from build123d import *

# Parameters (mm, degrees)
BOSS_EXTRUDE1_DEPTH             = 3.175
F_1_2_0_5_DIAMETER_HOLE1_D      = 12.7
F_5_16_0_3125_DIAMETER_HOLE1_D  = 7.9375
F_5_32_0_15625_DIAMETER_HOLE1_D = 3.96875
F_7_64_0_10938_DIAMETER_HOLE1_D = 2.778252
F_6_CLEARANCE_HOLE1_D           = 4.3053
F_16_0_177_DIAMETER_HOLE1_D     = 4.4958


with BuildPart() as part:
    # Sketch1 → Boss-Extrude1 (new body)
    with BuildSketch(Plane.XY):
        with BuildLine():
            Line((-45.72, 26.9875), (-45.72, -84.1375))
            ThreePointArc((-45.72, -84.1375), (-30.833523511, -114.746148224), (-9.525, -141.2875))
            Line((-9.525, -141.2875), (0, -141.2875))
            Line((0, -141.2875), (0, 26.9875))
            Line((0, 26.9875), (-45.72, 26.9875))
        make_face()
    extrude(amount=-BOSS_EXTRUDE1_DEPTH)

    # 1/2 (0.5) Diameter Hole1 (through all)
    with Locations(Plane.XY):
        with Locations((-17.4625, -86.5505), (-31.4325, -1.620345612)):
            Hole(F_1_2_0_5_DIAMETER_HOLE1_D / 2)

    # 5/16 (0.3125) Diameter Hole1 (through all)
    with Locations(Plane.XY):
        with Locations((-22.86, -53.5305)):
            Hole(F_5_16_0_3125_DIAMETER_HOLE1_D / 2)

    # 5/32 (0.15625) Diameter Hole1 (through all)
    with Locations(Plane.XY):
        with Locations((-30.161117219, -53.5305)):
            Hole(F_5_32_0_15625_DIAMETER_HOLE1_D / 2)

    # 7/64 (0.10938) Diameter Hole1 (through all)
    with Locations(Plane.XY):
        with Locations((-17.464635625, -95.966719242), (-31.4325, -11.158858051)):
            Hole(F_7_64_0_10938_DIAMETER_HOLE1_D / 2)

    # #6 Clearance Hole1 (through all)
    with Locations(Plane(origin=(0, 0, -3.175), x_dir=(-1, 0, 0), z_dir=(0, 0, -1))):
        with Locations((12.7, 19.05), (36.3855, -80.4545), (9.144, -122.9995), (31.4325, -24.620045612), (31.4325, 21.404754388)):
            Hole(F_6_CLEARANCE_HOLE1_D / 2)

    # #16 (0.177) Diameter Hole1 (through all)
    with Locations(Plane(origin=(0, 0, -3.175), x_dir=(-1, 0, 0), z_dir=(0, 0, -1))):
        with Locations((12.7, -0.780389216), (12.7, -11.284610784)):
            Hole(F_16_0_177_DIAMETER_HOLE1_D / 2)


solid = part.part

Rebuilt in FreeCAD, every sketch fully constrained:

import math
import FreeCAD as App
import Part
import Sketcher

V = App.Vector
Q = App.Units.Quantity

doc = App.newDocument("Part")
body = doc.addObject("PartDesign::Body", "Body")

# Sketch on XY plane
sketch1 = body.newObject("Sketcher::SketchObject", "Sketch")
sketch1.AttachmentSupport = (doc.getObject("XY_Plane"), [""])
sketch1.MapMode = "FlatFace"
sketch1.addGeometry([
    Part.LineSegment(V(-46, 27, 0), V(-46, -84, 0)),  # 0
    Part.ArcOfCircle(Part.Circle(V(98, -33, 0), V(0, 0, 1), 152), math.radians(-160), math.radians(-135)),  # 1
    Part.LineSegment(V(-10, -141, 0), V(0, -141, 0)),  # 2
    Part.LineSegment(V(0, -141, 0), V(0, 27, 0)),  # 3
    Part.LineSegment(V(0, 27, 0), V(-46, 27, 0)),  # 4
], False)
sketch1.addConstraint([
    Sketcher.Constraint("Coincident", 0, 2, 1, 1),
    Sketcher.Constraint("Coincident", 1, 2, 2, 1),
    Sketcher.Constraint("Coincident", 2, 2, 3, 1),
    Sketcher.Constraint("Coincident", 3, 2, 4, 1),
    Sketcher.Constraint("Coincident", 4, 2, 0, 1),
    Sketcher.Constraint("Vertical", 0),
    Sketcher.Constraint("Horizontal", 2),
    Sketcher.Constraint("Vertical", 3),
    Sketcher.Constraint("Horizontal", 4),
    Sketcher.Constraint("PointOnObject", 2, 2, -2),
    Sketcher.Constraint("Radius", 1, Q("6 in")),
    Sketcher.Constraint("DistanceX", 4, 2, 4, 1, Q("1.8 in")),
    Sketcher.Constraint("DistanceX", 2, 1, 2, 2, Q("0.375 in")),
    Sketcher.Constraint("DistanceY", 0, 2, 0, 1, Q("4.375 in")),
    Sketcher.Constraint("DistanceY", 3, 1, 3, 2, Q("6.625 in")),
    Sketcher.Constraint("DistanceY", 0, 2, -1, 1, Q("3.3125 in")),
])
pad1 = body.newObject("PartDesign::Pad", "Pad")
pad1.Profile = sketch1
pad1.Length = Q("0.125 in")
pad1.Reversed = True

# Sketch on XY plane
sketch2 = body.newObject("Sketcher::SketchObject", "Sketch001")
sketch2.AttachmentSupport = (doc.getObject("XY_Plane"), [""])
sketch2.MapMode = "FlatFace"
sketch2.addGeometry([
    Part.Circle(V(-17, -87, 0), V(0, 0, 1), 6),
    Part.Circle(V(-31, -2, 0), V(0, 0, 1), 6),
], False)
sketch2.addConstraint([
    Sketcher.Constraint("Equal", 0, 1),
    Sketcher.Constraint("Diameter", 0, Q("0.5 in")),
    Sketcher.Constraint("DistanceX", 1, 3, 0, 3, Q("0.55 in")),
    Sketcher.Constraint("DistanceX", 0, 3, -1, 1, Q("0.6875 in")),
    Sketcher.Constraint("DistanceY", 0, 3, -1, 1, Q("3.4075 in")),
    Sketcher.Constraint("DistanceY", 1, 3, -1, 1, 1.620346),
])
doc.recompute()
hole = body.newObject("PartDesign::Hole", "Hole")
hole.Profile = sketch2
hole.ThreadType = "None"
hole.Diameter = Q("0.5 in")
hole.DepthType = "ThroughAll"

# Sketch on XY plane
sketch3 = body.newObject("Sketcher::SketchObject", "Sketch002")
sketch3.AttachmentSupport = (doc.getObject("XY_Plane"), [""])
sketch3.MapMode = "FlatFace"
sketch3.addGeometry(Part.Circle(V(-22.9, -53.5, 0), V(0, 0, 1), 4), False)
sketch3.addConstraint([
    Sketcher.Constraint("Diameter", 0, Q("0.3125 in")),
    Sketcher.Constraint("DistanceX", 0, 3, -1, 1, Q("0.9 in")),
    Sketcher.Constraint("DistanceY", 0, 3, -1, 1, Q("2.1075 in")),
])
doc.recompute()
hole2 = body.newObject("PartDesign::Hole", "Hole001")
hole2.Profile = sketch3
hole2.ThreadType = "None"
hole2.Diameter = Q("0.3125 in")
hole2.DepthType = "ThroughAll"

# Sketch on XY plane
sketch4 = body.newObject("Sketcher::SketchObject", "Sketch003")
sketch4.AttachmentSupport = (doc.getObject("XY_Plane"), [""])
sketch4.MapMode = "FlatFace"
sketch4.addGeometry(Part.Circle(V(-30.2, -53.5, 0), V(0, 0, 1), 2), False)
sketch4.addConstraint([
    Sketcher.Constraint("Diameter", 0, Q("0.15625 in")),
    Sketcher.Constraint("DistanceY", 0, 3, -1, 1, Q("2.1075 in")),
    Sketcher.Constraint("DistanceX", 0, 3, -1, 1, 30.161117),
])
doc.recompute()
hole3 = body.newObject("PartDesign::Hole", "Hole002")
hole3.Profile = sketch4
hole3.ThreadType = "None"
hole3.Diameter = Q("0.15625 in")
hole3.DepthType = "ThroughAll"

# Sketch on XY plane
sketch5 = body.newObject("Sketcher::SketchObject", "Sketch004")
sketch5.AttachmentSupport = (doc.getObject("XY_Plane"), [""])
sketch5.MapMode = "FlatFace"
sketch5.addGeometry([
    Part.Circle(V(-17.5, -96, 0), V(0, 0, 1), 1.4),
    Part.Circle(V(-31.4, -11.2, 0), V(0, 0, 1), 1.4),
], False)
sketch5.addConstraint([
    Sketcher.Constraint("Equal", 0, 1),
    Sketcher.Constraint("Diameter", 0, 2.778252),
    Sketcher.Constraint("DistanceX", 1, 3, -1, 1, Q("1.2375 in")),
    Sketcher.Constraint("DistanceY", 0, 3, -1, 1, 95.966719),
    Sketcher.Constraint("DistanceY", 1, 3, -1, 1, 11.158858),
    Sketcher.Constraint("DistanceX", 0, 3, -1, 1, 17.464636),
])
doc.recompute()
hole4 = body.newObject("PartDesign::Hole", "Hole003")
hole4.Profile = sketch5
hole4.ThreadType = "None"
hole4.Diameter = 2.778252
hole4.DepthType = "ThroughAll"

# Sketch on XY plane
sketch6 = body.newObject("Sketcher::SketchObject", "Sketch005")
sketch6.AttachmentSupport = (doc.getObject("XY_Plane"), [""])
sketch6.MapMode = "FlatFace"
sketch6.AttachmentOffset = App.Placement(V(0, 0, -0.125 * 25.4), App.Rotation())
sketch6.addGeometry([
    Part.Circle(V(-12.7, 19.1, 0), V(0, 0, 1), 2.2),  # 0
    Part.Circle(V(-36.4, -80.5, 0), V(0, 0, 1), 2.2),  # 1
    Part.Circle(V(-9.1, -123, 0), V(0, 0, 1), 2.2),  # 2
    Part.Circle(V(-31.4, -24.6, 0), V(0, 0, 1), 2.2),  # 3
    Part.Circle(V(-31.4, 21.4, 0), V(0, 0, 1), 2.2),  # 4
], False)
sketch6.addConstraint([
    Sketcher.Constraint("Equal", 0, 1),
    Sketcher.Constraint("Equal", 1, 2),
    Sketcher.Constraint("Equal", 2, 3),
    Sketcher.Constraint("Equal", 3, 4),
    Sketcher.Constraint("Vertical", 3, 3, 4, 3),
    Sketcher.Constraint("Diameter", 0, Q("0.1695 in")),
    Sketcher.Constraint("DistanceX", 0, 3, -1, 1, Q("0.5 in")),
    Sketcher.Constraint("DistanceY", -1, 1, 0, 3, Q("0.75 in")),
    Sketcher.Constraint("DistanceX", 2, 3, -1, 1, Q("0.36 in")),
    Sketcher.Constraint("DistanceY", 2, 3, 1, 3, Q("1.675 in")),
    Sketcher.Constraint("DistanceX", 1, 3, 3, 3, Q("0.195 in")),
    Sketcher.Constraint("DistanceY", 3, 3, 4, 3, Q("1.812 in")),
    Sketcher.Constraint("DistanceX", 1, 3, -1, 1, Q("1.4325 in")),
    Sketcher.Constraint("DistanceY", 1, 3, -1, 1, Q("3.1675 in")),
    Sketcher.Constraint("DistanceY", 3, 3, -1, 1, 24.620046),
])
doc.recompute()
hole5 = body.newObject("PartDesign::Hole", "Hole004")
hole5.Profile = sketch6
hole5.ThreadType = "None"
hole5.Diameter = Q("0.1695 in")
hole5.DepthType = "ThroughAll"
hole5.Reversed = True

# Sketch on XY plane
sketch7 = body.newObject("Sketcher::SketchObject", "Sketch006")
sketch7.AttachmentSupport = (doc.getObject("XY_Plane"), [""])
sketch7.MapMode = "FlatFace"
sketch7.AttachmentOffset = App.Placement(V(0, 0, -0.125 * 25.4), App.Rotation())
sketch7.addGeometry([
    Part.Circle(V(-12.7, -0.8, 0), V(0, 0, 1), 2.2),
    Part.Circle(V(-12.7, -11.3, 0), V(0, 0, 1), 2.2),
], False)
sketch7.addConstraint([
    Sketcher.Constraint("Equal", 0, 1),
    Sketcher.Constraint("Vertical", 0, 3, 1, 3),
    Sketcher.Constraint("Diameter", 0, Q("0.177 in")),
    Sketcher.Constraint("DistanceX", 0, 3, -1, 1, Q("0.5 in")),
    Sketcher.Constraint("DistanceY", 0, 3, -1, 1, 0.780389),
    Sketcher.Constraint("DistanceY", 1, 3, -1, 1, 11.284611),
])
doc.recompute()
hole6 = body.newObject("PartDesign::Hole", "Hole005")
hole6.Profile = sketch7
hole6.ThreadType = "None"
hole6.Diameter = Q("0.177 in")
hole6.DepthType = "ThroughAll"
hole6.Reversed = True

doc.recompute()
